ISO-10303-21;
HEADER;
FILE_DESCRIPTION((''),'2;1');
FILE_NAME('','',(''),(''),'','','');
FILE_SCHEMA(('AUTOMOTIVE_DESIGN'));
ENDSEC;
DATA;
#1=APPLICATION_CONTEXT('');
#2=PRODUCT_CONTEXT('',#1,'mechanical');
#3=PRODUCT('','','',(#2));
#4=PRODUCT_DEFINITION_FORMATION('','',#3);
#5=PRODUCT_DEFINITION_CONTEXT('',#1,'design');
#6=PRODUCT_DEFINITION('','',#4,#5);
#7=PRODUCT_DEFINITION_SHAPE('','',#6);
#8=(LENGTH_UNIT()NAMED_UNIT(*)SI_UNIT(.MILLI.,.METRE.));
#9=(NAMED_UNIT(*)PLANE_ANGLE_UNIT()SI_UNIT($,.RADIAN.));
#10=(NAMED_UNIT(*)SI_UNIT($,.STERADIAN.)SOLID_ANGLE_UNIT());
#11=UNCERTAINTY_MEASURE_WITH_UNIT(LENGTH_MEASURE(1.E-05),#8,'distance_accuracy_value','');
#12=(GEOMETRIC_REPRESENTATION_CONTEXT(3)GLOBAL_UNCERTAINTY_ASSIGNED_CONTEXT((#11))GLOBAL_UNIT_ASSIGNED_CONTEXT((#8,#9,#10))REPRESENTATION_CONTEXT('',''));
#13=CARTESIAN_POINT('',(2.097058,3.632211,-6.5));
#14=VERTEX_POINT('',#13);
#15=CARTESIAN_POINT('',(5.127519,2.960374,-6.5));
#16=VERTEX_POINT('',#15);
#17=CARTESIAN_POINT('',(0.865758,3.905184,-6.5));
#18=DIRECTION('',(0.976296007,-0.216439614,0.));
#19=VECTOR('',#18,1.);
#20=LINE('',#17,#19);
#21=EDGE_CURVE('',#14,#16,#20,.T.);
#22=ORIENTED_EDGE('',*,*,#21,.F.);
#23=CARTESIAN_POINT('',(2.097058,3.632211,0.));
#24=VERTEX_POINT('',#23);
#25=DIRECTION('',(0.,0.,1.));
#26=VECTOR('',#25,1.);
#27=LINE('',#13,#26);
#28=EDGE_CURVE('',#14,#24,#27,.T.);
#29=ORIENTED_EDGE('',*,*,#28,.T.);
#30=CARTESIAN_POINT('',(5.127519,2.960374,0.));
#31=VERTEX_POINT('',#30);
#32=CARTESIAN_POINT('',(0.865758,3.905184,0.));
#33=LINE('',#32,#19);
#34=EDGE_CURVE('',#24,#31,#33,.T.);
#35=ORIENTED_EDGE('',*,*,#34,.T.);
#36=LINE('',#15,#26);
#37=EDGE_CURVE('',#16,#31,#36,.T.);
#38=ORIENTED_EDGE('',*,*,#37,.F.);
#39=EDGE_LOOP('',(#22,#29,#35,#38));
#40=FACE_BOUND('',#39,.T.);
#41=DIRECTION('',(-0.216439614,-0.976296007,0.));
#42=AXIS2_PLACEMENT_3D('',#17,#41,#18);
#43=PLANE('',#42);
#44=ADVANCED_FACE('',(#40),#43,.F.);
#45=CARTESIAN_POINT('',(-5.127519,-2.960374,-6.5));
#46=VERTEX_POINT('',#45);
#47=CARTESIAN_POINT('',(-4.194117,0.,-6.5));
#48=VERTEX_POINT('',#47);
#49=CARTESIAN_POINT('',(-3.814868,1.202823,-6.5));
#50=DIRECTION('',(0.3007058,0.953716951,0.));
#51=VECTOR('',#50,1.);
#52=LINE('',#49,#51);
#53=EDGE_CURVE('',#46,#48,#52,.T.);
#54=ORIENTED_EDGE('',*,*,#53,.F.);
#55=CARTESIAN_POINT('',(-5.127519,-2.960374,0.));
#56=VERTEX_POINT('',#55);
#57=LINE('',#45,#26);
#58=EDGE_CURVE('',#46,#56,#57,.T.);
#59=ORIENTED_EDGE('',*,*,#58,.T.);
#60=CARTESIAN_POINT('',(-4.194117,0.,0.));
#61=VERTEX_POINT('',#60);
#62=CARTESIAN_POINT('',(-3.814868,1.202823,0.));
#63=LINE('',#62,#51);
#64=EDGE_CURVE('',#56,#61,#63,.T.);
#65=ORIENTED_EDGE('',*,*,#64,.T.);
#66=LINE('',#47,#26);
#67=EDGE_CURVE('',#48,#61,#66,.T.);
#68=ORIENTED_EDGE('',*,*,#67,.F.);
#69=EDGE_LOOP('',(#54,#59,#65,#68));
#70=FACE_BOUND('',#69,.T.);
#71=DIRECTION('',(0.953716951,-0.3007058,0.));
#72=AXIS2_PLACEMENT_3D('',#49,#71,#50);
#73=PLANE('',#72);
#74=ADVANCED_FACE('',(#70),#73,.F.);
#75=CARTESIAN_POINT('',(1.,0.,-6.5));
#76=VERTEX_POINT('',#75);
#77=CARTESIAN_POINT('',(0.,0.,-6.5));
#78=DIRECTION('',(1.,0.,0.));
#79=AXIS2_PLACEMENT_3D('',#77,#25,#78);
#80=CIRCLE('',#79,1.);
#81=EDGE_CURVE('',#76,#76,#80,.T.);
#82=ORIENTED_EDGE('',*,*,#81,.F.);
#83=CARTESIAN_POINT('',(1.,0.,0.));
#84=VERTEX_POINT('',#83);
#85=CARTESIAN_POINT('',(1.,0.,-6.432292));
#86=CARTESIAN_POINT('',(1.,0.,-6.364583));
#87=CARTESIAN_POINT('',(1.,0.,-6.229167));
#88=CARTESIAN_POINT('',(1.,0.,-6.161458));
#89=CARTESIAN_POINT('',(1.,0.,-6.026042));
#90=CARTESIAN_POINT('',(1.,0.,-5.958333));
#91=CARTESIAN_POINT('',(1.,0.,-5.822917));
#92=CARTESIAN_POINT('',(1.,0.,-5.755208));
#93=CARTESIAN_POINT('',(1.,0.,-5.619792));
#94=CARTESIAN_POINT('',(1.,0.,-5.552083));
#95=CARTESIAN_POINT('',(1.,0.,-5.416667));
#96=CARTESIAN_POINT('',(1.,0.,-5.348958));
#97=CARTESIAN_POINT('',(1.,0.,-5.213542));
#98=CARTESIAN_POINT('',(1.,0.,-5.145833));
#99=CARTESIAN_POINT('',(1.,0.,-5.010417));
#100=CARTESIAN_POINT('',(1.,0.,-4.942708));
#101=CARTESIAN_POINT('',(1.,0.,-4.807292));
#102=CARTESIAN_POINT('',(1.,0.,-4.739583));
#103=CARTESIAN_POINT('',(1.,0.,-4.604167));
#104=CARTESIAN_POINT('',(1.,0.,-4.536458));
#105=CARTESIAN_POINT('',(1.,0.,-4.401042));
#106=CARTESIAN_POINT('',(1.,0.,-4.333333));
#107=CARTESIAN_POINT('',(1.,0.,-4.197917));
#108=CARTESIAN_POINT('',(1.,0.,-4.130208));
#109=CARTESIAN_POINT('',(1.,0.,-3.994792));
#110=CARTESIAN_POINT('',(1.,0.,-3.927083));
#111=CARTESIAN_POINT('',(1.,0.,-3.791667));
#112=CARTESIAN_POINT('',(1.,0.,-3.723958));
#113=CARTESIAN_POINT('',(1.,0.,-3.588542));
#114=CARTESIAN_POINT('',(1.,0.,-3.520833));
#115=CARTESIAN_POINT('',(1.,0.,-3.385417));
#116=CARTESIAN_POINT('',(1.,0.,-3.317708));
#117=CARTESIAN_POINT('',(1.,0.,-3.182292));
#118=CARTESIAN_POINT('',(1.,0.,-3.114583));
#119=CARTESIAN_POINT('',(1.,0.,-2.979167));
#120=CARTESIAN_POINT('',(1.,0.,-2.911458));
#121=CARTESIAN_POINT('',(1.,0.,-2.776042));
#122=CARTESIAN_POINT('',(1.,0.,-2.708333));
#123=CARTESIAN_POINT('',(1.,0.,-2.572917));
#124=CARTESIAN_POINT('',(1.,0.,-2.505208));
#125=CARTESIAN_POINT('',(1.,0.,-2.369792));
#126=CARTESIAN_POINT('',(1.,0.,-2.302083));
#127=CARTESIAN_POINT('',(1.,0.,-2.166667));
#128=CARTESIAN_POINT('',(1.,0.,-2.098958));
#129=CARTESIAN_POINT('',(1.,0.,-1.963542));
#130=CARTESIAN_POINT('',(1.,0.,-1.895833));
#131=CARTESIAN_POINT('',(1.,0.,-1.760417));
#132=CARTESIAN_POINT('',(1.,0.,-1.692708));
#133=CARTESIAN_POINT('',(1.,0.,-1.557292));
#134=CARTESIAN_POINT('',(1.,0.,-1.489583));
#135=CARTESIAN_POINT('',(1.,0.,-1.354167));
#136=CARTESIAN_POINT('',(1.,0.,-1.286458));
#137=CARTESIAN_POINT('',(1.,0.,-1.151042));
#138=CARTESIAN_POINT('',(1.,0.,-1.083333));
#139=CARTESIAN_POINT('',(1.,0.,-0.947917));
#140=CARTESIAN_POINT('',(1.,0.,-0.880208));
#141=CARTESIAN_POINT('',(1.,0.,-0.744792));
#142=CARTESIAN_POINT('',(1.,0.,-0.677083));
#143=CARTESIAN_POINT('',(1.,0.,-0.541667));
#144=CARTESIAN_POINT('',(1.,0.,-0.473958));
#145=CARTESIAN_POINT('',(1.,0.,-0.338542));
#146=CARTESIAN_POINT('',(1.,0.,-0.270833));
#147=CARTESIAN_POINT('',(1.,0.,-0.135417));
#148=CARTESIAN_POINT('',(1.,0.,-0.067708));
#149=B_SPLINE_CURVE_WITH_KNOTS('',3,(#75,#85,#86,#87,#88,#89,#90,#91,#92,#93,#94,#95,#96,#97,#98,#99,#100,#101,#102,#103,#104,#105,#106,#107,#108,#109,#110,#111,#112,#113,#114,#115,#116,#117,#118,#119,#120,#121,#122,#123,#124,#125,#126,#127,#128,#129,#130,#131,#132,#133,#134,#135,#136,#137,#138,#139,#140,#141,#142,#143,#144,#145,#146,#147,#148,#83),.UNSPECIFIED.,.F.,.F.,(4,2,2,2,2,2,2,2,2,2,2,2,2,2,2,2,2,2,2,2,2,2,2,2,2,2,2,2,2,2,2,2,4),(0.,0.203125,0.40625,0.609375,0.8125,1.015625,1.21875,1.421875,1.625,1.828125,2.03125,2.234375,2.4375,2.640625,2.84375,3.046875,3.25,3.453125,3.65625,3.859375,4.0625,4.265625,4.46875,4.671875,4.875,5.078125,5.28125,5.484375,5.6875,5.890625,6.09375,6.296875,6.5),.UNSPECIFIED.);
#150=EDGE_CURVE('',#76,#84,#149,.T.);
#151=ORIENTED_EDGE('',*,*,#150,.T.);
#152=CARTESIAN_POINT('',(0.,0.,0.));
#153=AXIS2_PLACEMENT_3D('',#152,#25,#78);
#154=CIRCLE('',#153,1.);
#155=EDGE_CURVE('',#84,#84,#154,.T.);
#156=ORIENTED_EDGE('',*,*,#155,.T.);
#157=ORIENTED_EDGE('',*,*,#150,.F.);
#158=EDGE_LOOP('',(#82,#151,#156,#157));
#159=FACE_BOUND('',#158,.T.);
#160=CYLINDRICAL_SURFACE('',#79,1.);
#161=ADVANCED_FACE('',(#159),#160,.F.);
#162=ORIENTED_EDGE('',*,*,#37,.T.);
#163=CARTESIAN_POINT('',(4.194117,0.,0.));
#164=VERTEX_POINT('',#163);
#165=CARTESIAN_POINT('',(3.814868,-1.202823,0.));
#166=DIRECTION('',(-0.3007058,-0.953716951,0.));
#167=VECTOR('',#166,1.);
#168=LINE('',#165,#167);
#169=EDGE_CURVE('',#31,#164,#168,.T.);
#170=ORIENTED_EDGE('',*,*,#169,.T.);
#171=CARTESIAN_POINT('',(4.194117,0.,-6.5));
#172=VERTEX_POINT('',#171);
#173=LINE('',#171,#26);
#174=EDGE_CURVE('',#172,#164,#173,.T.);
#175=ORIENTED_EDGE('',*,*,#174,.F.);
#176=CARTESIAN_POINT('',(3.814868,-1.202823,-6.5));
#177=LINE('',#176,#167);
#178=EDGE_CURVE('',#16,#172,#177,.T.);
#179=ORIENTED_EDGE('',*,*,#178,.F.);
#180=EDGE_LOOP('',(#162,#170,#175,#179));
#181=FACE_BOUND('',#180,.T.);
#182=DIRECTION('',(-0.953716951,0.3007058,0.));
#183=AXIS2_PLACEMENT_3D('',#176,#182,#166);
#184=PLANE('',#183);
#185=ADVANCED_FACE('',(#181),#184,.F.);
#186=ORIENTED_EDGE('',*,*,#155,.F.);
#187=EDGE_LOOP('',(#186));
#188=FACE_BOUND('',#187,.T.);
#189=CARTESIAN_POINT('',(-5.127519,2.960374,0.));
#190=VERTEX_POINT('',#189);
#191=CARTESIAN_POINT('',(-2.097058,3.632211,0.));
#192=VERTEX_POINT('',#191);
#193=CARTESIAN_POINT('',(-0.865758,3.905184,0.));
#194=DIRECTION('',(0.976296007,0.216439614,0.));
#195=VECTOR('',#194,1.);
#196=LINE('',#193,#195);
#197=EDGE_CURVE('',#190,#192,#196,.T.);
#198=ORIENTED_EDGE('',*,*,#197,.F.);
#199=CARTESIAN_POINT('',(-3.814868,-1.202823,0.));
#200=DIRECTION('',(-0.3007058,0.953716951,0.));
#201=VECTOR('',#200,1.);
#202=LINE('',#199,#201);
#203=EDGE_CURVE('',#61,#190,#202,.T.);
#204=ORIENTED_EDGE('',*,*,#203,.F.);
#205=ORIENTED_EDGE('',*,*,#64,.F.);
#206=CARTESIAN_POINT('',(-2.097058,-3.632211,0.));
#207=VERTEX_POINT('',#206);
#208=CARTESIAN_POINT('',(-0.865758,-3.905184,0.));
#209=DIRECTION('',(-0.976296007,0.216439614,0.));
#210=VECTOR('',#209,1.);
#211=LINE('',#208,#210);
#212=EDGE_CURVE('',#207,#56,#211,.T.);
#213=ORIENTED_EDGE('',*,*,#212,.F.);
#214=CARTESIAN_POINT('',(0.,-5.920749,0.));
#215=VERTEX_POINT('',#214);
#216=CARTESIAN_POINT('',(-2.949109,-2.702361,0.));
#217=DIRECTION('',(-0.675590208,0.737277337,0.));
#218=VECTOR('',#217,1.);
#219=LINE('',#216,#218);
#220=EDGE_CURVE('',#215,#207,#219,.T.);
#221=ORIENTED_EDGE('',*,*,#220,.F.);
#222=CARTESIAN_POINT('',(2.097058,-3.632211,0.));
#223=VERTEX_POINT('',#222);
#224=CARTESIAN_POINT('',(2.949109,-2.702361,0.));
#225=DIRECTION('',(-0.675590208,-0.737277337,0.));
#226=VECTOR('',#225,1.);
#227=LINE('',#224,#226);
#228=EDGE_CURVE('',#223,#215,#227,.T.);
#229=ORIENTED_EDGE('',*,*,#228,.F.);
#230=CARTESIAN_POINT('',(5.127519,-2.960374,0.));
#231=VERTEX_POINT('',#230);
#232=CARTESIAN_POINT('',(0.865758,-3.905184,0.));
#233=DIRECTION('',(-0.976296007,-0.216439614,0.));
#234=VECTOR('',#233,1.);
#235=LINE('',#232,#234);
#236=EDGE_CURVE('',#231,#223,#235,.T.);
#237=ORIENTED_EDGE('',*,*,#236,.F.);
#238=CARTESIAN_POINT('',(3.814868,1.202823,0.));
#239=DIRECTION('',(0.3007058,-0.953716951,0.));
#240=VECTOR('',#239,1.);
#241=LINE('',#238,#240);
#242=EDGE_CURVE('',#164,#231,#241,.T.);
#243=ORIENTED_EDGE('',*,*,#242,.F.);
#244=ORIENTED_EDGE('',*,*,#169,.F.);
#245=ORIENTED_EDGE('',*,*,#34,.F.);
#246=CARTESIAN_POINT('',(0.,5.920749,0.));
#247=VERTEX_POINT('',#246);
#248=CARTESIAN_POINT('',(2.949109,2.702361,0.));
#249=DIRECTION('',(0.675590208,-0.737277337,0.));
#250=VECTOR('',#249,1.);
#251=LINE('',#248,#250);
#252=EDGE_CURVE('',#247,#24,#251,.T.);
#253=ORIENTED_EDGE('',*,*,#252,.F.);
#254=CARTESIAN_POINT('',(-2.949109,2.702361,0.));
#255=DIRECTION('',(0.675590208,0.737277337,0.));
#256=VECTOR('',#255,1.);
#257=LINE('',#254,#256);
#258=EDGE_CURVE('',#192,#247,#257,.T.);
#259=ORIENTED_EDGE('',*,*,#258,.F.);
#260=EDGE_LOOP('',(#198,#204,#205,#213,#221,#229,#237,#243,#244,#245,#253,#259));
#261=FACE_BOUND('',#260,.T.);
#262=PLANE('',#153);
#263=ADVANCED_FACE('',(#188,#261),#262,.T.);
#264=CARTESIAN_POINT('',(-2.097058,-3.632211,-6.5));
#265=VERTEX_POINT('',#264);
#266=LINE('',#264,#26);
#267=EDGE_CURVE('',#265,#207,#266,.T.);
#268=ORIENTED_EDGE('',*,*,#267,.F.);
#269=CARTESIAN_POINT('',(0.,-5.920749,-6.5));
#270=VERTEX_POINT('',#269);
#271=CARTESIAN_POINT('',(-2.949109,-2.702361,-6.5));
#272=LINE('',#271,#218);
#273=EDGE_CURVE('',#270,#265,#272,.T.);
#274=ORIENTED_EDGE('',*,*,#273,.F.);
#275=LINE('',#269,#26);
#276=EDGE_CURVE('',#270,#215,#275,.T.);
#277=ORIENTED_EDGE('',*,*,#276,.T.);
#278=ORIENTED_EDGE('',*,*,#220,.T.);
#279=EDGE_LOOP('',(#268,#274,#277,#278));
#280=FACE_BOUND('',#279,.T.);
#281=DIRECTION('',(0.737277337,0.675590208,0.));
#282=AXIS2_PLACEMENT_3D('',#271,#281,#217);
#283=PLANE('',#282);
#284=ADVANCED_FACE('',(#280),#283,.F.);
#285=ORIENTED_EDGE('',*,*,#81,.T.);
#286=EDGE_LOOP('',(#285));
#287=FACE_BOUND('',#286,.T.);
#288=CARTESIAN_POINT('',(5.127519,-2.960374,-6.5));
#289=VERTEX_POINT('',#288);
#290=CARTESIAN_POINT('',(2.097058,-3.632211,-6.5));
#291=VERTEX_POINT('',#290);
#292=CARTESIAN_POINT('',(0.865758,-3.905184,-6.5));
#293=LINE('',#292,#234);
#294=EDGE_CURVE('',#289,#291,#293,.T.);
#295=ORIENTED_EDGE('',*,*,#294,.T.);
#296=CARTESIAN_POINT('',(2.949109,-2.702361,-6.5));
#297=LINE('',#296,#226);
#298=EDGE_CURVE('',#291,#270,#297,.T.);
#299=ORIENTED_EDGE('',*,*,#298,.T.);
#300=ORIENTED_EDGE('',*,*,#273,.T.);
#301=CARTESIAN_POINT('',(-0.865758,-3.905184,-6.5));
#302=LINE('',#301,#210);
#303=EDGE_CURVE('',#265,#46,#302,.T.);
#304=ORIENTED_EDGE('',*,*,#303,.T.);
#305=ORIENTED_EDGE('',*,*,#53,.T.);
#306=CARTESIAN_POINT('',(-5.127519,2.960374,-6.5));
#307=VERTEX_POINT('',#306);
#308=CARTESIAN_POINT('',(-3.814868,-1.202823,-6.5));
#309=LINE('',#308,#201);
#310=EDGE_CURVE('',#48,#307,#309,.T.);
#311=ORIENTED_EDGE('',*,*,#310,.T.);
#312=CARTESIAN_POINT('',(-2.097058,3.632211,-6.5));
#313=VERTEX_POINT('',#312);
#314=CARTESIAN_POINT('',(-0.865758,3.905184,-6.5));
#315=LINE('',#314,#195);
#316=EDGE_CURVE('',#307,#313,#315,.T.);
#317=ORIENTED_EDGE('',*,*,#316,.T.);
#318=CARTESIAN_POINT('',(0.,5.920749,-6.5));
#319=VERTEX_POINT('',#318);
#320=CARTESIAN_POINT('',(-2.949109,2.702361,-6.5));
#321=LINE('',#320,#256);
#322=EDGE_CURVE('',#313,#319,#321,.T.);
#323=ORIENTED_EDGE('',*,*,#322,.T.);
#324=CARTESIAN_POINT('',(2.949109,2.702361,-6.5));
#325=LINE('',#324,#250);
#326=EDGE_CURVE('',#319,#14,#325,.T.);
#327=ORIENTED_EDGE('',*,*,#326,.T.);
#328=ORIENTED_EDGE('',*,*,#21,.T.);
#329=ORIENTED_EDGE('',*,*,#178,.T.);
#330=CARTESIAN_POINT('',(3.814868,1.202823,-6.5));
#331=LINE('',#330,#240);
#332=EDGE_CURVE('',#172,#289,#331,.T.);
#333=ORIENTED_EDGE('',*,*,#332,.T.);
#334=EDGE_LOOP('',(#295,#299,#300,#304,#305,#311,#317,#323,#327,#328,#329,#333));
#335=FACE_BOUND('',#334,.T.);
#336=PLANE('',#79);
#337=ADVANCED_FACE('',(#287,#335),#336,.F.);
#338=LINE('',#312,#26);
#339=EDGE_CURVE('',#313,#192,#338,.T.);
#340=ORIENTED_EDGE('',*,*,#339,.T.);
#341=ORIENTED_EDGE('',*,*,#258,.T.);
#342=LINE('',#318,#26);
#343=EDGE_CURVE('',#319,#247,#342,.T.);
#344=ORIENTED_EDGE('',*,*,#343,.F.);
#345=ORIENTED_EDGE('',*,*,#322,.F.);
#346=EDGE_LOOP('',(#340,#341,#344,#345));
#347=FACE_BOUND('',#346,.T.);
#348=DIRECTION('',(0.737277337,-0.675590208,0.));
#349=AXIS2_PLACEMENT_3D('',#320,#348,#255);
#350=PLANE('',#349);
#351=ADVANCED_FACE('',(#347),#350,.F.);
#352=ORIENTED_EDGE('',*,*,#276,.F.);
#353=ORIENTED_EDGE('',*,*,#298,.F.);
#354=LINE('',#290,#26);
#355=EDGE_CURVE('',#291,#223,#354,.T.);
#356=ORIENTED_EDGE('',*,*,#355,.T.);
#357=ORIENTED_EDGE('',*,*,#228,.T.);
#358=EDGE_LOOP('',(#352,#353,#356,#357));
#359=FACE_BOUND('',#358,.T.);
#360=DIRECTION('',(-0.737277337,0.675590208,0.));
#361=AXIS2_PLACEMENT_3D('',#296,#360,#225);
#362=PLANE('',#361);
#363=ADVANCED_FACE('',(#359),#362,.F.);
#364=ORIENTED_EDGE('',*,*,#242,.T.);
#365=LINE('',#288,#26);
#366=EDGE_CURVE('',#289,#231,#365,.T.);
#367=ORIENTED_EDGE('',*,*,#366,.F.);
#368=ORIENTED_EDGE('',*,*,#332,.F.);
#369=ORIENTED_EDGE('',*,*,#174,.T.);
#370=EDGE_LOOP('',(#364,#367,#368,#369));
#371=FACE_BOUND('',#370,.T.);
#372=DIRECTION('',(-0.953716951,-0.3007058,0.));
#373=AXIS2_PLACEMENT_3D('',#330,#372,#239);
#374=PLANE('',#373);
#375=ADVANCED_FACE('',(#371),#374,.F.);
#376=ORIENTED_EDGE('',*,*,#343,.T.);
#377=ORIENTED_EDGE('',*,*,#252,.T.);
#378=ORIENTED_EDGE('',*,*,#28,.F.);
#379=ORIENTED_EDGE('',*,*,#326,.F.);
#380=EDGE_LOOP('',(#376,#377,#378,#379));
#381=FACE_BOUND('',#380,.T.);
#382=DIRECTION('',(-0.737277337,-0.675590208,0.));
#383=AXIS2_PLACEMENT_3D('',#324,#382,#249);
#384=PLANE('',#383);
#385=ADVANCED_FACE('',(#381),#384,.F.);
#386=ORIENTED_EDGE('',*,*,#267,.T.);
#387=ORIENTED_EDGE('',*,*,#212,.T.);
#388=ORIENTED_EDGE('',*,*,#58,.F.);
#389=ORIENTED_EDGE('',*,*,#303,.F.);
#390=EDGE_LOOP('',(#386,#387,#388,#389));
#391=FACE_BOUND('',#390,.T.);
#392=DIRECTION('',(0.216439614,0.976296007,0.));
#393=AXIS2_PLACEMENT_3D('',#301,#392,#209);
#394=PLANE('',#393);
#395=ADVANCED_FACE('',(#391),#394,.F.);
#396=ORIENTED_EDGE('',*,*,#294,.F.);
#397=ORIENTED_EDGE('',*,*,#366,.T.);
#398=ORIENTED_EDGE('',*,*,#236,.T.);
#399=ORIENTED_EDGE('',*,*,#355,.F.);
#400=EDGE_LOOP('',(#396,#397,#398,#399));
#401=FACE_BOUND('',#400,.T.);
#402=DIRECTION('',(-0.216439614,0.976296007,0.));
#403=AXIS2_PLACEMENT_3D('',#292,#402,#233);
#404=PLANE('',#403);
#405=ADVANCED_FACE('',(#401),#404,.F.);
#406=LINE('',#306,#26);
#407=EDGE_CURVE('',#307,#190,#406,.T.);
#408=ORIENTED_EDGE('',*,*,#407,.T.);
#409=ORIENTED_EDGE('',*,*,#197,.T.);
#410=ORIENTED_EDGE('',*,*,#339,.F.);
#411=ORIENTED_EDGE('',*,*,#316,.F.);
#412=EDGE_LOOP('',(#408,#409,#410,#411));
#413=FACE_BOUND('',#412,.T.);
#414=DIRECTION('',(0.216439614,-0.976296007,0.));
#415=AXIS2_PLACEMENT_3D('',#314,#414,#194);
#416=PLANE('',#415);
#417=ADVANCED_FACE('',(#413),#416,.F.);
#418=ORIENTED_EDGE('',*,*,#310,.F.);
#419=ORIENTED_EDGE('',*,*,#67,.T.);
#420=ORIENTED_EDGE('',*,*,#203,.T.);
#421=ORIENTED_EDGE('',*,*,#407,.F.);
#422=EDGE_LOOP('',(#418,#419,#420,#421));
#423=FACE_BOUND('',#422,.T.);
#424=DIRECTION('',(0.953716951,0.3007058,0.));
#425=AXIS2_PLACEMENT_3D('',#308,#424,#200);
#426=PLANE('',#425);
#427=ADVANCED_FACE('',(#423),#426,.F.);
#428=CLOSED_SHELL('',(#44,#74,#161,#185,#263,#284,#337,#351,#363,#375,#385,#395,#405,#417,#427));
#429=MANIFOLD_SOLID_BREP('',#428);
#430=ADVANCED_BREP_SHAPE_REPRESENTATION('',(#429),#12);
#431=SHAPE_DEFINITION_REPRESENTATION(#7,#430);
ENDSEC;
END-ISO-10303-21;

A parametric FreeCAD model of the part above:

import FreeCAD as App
import Part
import Sketcher

V = App.Vector
Q = App.Units.Quantity

doc = App.newDocument("Part")
body = doc.addObject("PartDesign::Body", "Body")

# Sketch on XY plane
sketch1 = body.newObject("Sketcher::SketchObject", "Sketch")
sketch1.AttachmentSupport = (doc.getObject("XY_Plane"), [""])
sketch1.MapMode = "FlatFace"
sketch1.addGeometry([
    Part.LineSegment(V(0, -5.9, 0), V(2.1, -3.6, 0)),  # 0
    Part.LineSegment(V(2.1, -3.6, 0), V(5.1, -3, 0)),  # 1
    Part.LineSegment(V(5.1, -3, 0), V(4.2, 0, 0)),  # 2
    Part.LineSegment(V(4.2, 0, 0), V(5.1, 3, 0)),  # 3
    Part.LineSegment(V(5.1, 3, 0), V(2.1, 3.6, 0)),  # 4
    Part.LineSegment(V(2.1, 3.6, 0), V(0, 5.9, 0)),  # 5
    Part.LineSegment(V(0, 5.9, 0), V(-2.1, 3.6, 0)),  # 6
    Part.LineSegment(V(-2.1, 3.6, 0), V(-5.1, 3, 0)),  # 7
    Part.LineSegment(V(-5.1, 3, 0), V(-4.2, 0, 0)),  # 8
    Part.LineSegment(V(-4.2, 0, 0), V(-5.1, -3, 0)),  # 9
    Part.LineSegment(V(-5.1, -3, 0), V(-2.1, -3.6, 0)),  # 10
    Part.LineSegment(V(-2.1, -3.6, 0), V(0, -5.9, 0)),  # 11
    Part.Circle(V(0, 0, 0), V(0, 0, 1), 1),  # 12
], False)
sketch1.addConstraint([
    Sketcher.Constraint("Coincident", 0, 2, 1, 1),
    Sketcher.Constraint("Coincident", 1, 2, 2, 1),
    Sketcher.Constraint("Coincident", 2, 2, 3, 1),
    Sketcher.Constraint("Coincident", 3, 2, 4, 1),
    Sketcher.Constraint("Coincident", 4, 2, 5, 1),
    Sketcher.Constraint("Coincident", 5, 2, 6, 1),
    Sketcher.Constraint("Coincident", 6, 2, 7, 1),
    Sketcher.Constraint("Coincident", 7, 2, 8, 1),
    Sketcher.Constraint("Coincident", 8, 2, 9, 1),
    Sketcher.Constraint("Coincident", 9, 2, 10, 1),
    Sketcher.Constraint("Coincident", 10, 2, 11, 1),
    Sketcher.Constraint("Coincident", 11, 2, 0, 1),
    Sketcher.Constraint("Coincident", 12, 3, -1, 1),
    Sketcher.Constraint("Symmetric", 0, 2, 6, 2, -1, 1),
    Sketcher.Constraint("Symmetric", 1, 2, 7, 2, -1, 1),
    Sketcher.Constraint("Symmetric", 2, 2, 8, 2, -1, 1),
    Sketcher.Constraint("Symmetric", 3, 2, 9, 2, -1, 1),
    Sketcher.Constraint("Symmetric", 4, 2, 10, 2, -1, 1),
    Sketcher.Constraint("Symmetric", 5, 2, 11, 2, -1, 1),
    Sketcher.Constraint("Symmetric", 4, 2, 6, 2, -2),
    Sketcher.Constraint("Symmetric", 3, 2, 7, 2, -2),
    Sketcher.Constraint("PointOnObject", 2, 2, -1),
    Sketcher.Constraint("PointOnObject", 5, 2, -2),
    Sketcher.Constraint("Equal", 0, 1),
    Sketcher.Constraint("Equal", 1, 2),
    Sketcher.Constraint("Diameter", 12, 2.0),
    Sketcher.Constraint("Angle", 0, Q("47.5 deg")),
    Sketcher.Constraint("Angle", 1, Q("12.5 deg")),
    Sketcher.Constraint("Angle", 2, Q("107.5 deg")),
    Sketcher.Constraint("Distance", 0, 3.104039),
])
pad1 = body.newObject("PartDesign::Pad", "Pad")
pad1.Profile = sketch1
pad1.Length = 6.5
pad1.Reversed = True

doc.recompute()
